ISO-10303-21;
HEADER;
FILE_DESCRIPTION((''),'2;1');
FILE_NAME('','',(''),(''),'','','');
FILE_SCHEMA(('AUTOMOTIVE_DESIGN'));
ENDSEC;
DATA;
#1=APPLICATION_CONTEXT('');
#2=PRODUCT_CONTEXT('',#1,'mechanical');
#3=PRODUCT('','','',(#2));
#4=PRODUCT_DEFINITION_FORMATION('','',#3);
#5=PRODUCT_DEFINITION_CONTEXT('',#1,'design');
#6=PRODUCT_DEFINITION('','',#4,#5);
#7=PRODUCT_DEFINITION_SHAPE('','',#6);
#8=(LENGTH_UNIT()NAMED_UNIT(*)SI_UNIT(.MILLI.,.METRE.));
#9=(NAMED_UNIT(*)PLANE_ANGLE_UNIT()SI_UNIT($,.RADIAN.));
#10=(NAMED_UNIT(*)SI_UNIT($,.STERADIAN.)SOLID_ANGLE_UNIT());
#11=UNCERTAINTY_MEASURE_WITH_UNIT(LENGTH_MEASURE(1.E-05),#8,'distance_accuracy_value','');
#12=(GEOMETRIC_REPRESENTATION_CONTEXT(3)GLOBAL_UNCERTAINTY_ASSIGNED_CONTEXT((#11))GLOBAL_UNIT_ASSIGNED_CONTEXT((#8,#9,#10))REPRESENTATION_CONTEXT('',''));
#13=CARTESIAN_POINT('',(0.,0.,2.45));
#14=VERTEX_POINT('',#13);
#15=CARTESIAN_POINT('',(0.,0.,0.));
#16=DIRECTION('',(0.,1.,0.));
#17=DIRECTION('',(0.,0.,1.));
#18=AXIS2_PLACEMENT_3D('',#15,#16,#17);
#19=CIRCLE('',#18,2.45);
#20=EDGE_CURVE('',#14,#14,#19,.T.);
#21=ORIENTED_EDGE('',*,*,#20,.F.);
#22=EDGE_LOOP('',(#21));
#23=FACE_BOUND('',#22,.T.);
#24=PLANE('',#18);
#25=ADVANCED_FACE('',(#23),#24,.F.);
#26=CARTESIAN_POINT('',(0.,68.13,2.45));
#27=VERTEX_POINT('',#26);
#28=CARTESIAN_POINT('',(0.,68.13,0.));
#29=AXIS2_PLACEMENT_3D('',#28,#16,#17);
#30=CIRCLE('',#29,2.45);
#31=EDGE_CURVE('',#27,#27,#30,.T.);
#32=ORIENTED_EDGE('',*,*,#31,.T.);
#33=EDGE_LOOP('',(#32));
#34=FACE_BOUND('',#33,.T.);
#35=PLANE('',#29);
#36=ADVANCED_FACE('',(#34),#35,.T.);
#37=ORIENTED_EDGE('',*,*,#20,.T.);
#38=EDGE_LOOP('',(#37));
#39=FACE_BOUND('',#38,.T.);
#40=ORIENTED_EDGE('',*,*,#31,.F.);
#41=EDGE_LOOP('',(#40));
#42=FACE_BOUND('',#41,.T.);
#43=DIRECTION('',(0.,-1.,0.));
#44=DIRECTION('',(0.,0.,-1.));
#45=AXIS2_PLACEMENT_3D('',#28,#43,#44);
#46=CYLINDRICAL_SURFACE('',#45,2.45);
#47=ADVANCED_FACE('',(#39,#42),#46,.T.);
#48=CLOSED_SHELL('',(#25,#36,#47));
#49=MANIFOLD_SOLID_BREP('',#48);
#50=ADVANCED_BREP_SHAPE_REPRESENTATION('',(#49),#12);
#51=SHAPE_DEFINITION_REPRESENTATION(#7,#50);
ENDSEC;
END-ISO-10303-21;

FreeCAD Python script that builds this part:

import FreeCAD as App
import Part
import Sketcher
Q = App.Units.Quantity

doc = App.newDocument("Part")
body = doc.addObject("PartDesign::Body", "Body")

# Sketch on XZ plane
sketch1 = body.newObject("Sketcher::SketchObject", "Sketch")
sketch1.AttachmentSupport = (doc.getObject("XZ_Plane"), [""])
sketch1.MapMode = "FlatFace"
sketch1.addGeometry(Part.Circle(App.Vector(0, 0, 0), App.Vector(0, 0, 1), 2.5), False)
sketch1.addConstraint(Sketcher.Constraint("Coincident", 0, 3, -1, 1))
sketch1.addConstraint(Sketcher.Constraint("Diameter", 0, Q("4.9 mm")))
pad1 = body.newObject("PartDesign::Pad", "Pad")
pad1.Profile = sketch1
pad1.Length = 68.13
pad1.Reversed = True

doc.recompute()
